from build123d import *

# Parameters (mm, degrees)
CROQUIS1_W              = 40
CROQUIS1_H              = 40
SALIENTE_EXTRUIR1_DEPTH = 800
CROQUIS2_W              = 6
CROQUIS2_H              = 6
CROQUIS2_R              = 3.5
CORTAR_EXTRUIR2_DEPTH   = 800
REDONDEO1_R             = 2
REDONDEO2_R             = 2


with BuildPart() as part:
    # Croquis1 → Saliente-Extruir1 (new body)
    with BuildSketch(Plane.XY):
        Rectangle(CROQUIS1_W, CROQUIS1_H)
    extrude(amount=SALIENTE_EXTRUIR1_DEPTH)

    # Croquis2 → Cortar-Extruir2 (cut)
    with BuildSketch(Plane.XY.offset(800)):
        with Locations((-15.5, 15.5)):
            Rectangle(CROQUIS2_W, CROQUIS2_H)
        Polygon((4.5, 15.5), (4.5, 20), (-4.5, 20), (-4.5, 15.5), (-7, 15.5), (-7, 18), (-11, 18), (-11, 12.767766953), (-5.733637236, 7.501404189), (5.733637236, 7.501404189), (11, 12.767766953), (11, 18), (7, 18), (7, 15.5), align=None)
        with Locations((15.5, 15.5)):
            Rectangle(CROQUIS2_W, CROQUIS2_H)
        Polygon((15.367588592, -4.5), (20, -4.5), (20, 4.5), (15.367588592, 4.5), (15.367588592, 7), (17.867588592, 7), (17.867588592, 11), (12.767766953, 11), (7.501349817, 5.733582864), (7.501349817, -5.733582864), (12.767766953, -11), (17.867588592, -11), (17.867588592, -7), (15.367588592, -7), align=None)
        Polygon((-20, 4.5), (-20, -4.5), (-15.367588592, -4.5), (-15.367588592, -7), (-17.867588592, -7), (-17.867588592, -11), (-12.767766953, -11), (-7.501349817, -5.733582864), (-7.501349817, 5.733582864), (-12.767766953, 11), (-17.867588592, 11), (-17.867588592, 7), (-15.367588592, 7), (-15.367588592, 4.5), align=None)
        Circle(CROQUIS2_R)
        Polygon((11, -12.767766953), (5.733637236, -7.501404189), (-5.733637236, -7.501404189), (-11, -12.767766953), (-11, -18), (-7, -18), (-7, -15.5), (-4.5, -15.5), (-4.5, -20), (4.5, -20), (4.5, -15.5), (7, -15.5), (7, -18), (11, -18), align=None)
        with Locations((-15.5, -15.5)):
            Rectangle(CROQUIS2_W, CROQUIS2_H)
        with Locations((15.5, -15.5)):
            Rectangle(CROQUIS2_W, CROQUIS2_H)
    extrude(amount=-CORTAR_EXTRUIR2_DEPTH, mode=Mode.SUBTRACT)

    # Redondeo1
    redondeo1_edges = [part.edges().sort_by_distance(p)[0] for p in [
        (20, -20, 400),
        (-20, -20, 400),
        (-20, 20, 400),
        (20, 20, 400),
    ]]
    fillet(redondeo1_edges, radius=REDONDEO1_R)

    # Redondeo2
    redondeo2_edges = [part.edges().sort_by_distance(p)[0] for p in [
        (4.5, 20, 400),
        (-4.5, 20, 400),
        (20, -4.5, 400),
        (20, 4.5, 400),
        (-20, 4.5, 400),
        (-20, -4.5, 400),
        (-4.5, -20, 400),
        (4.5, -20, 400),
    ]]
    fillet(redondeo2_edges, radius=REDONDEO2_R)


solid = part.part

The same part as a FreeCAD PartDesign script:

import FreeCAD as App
import Part
import Sketcher


def edges_at(feature, points):
    """Names of the edges that pass closest to the given points."""
    edges = feature.Shape.Edges
    near = lambda p: min(range(len(edges)), key=lambda i: edges[i].distToShape(Part.Vertex(*p))[0])
    return sorted({f"Edge{near(p) + 1}" for p in points})

doc = App.newDocument("Part")
body = doc.addObject("PartDesign::Body", "Body")

sketch1 = doc.addObject("Sketcher::SketchObject", "Sketch")
body.addObject(sketch1)
sketch1.AttachmentSupport = (doc.XY_Plane, [""])
sketch1.MapMode = "FlatFace"
sketch1.addGeometry([
    Part.LineSegment(App.Vector(-20, 20, 0), App.Vector(-20, -20, 0)),
    Part.LineSegment(App.Vector(-20, -20, 0), App.Vector(20, -20, 0)),
    Part.LineSegment(App.Vector(20, -20, 0), App.Vector(20, 20, 0)),
    Part.LineSegment(App.Vector(20, 20, 0), App.Vector(-20, 20, 0)),
], False)
sketch1.addConstraint([
    Sketcher.Constraint("Coincident", 0, 2, 1, 1),
    Sketcher.Constraint("Coincident", 1, 2, 2, 1),
    Sketcher.Constraint("Coincident", 2, 2, 3, 1),
    Sketcher.Constraint("Coincident", 3, 2, 0, 1),
    Sketcher.Constraint("Vertical", 0),
    Sketcher.Constraint("Horizontal", 1),
    Sketcher.Constraint("Vertical", 2),
    Sketcher.Constraint("Horizontal", 3),
    Sketcher.Constraint("Symmetric", 0, 2, 2, 2, -1, 1),
    Sketcher.Constraint("Equal", 3, 0),
    Sketcher.Constraint("DistanceX", 1, 1, 1, 2, 40.0),
])
pad1 = doc.addObject("PartDesign::Pad", "Pad")
body.addObject(pad1)
pad1.Profile = sketch1
pad1.Length = 800

sketch2 = doc.addObject("Sketcher::SketchObject", "Sketch001")
body.addObject(sketch2)
sketch2.AttachmentSupport = (doc.XY_Plane, [""])
sketch2.MapMode = "FlatFace"
sketch2.AttachmentOffset = App.Placement(App.Vector(0, 0, 800), App.Rotation())
sketch2.addGeometry([
    Part.LineSegment(App.Vector(-18.5, 18.5, 0), App.Vector(-18.5, 12.5, 0)),
    Part.LineSegment(App.Vector(-18.5, 12.5, 0), App.Vector(-12.5, 12.5, 0)),
    Part.LineSegment(App.Vector(-12.5, 12.5, 0), App.Vector(-12.5, 18.5, 0)),
    Part.LineSegment(App.Vector(-12.5, 18.5, 0), App.Vector(-18.5, 18.5, 0)),
    Part.LineSegment(App.Vector(4.5, 15.5, 0), App.Vector(4.5, 20, 0)),
    Part.LineSegment(App.Vector(4.5, 20, 0), App.Vector(-4.5, 20, 0)),
    Part.LineSegment(App.Vector(-4.5, 20, 0), App.Vector(-4.5, 15.5, 0)),
    Part.LineSegment(App.Vector(-4.5, 15.5, 0), App.Vector(-7, 15.5, 0)),
    Part.LineSegment(App.Vector(-7, 15.5, 0), App.Vector(-7, 18, 0)),
    Part.LineSegment(App.Vector(-7, 18, 0), App.Vector(-11, 18, 0)),
    Part.LineSegment(App.Vector(-11, 18, 0), App.Vector(-11, 12.8, 0)),
    Part.LineSegment(App.Vector(-11, 12.8, 0), App.Vector(-5.7, 7.5, 0)),
    Part.LineSegment(App.Vector(-5.7, 7.5, 0), App.Vector(5.7, 7.5, 0)),
    Part.LineSegment(App.Vector(5.7, 7.5, 0), App.Vector(11, 12.8, 0)),
    Part.LineSegment(App.Vector(11, 12.8, 0), App.Vector(11, 18, 0)),
    Part.LineSegment(App.Vector(11, 18, 0), App.Vector(7, 18, 0)),
    Part.LineSegment(App.Vector(7, 18, 0), App.Vector(7, 15.5, 0)),
    Part.LineSegment(App.Vector(7, 15.5, 0), App.Vector(4.5, 15.5, 0)),
    Part.LineSegment(App.Vector(12.5, 18.5, 0), App.Vector(12.5, 12.5, 0)),
    Part.LineSegment(App.Vector(12.5, 12.5, 0), App.Vector(18.5, 12.5, 0)),
    Part.LineSegment(App.Vector(18.5, 12.5, 0), App.Vector(18.5, 18.5, 0)),
    Part.LineSegment(App.Vector(18.5, 18.5, 0), App.Vector(12.5, 18.5, 0)),
    Part.LineSegment(App.Vector(15.4, -4.5, 0), App.Vector(20, -4.5, 0)),
    Part.LineSegment(App.Vector(20, -4.5, 0), App.Vector(20, 4.5, 0)),
    Part.LineSegment(App.Vector(20, 4.5, 0), App.Vector(15.4, 4.5, 0)),
    Part.LineSegment(App.Vector(15.4, 4.5, 0), App.Vector(15.4, 7, 0)),
    Part.LineSegment(App.Vector(15.4, 7, 0), App.Vector(17.9, 7, 0)),
    Part.LineSegment(App.Vector(17.9, 7, 0), App.Vector(17.9, 11, 0)),
    Part.LineSegment(App.Vector(17.9, 11, 0), App.Vector(12.8, 11, 0)),
    Part.LineSegment(App.Vector(12.8, 11, 0), App.Vector(7.5, 5.7, 0)),
    Part.LineSegment(App.Vector(7.5, 5.7, 0), App.Vector(7.5, -5.7, 0)),
    Part.LineSegment(App.Vector(7.5, -5.7, 0), App.Vector(12.8, -11, 0)),
    Part.LineSegment(App.Vector(12.8, -11, 0), App.Vector(17.9, -11, 0)),
    Part.LineSegment(App.Vector(17.9, -11, 0), App.Vector(17.9, -7, 0)),
    Part.LineSegment(App.Vector(17.9, -7, 0), App.Vector(15.4, -7, 0)),
    Part.LineSegment(App.Vector(15.4, -7, 0), App.Vector(15.4, -4.5, 0)),
    Part.LineSegment(App.Vector(-20, 4.5, 0), App.Vector(-20, -4.5, 0)),
    Part.LineSegment(App.Vector(-20, -4.5, 0), App.Vector(-15.4, -4.5, 0)),
    Part.LineSegment(App.Vector(-15.4, -4.5, 0), App.Vector(-15.4, -7, 0)),
    Part.LineSegment(App.Vector(-15.4, -7, 0), App.Vector(-17.9, -7, 0)),
    Part.LineSegment(App.Vector(-17.9, -7, 0), App.Vector(-17.9, -11, 0)),
    Part.LineSegment(App.Vector(-17.9, -11, 0), App.Vector(-12.8, -11, 0)),
    Part.LineSegment(App.Vector(-12.8, -11, 0), App.Vector(-7.5, -5.7, 0)),
    Part.LineSegment(App.Vector(-7.5, -5.7, 0), App.Vector(-7.5, 5.7, 0)),
    Part.LineSegment(App.Vector(-7.5, 5.7, 0), App.Vector(-12.8, 11, 0)),
    Part.LineSegment(App.Vector(-12.8, 11, 0), App.Vector(-17.9, 11, 0)),
    Part.LineSegment(App.Vector(-17.9, 11, 0), App.Vector(-17.9, 7, 0)),
    Part.LineSegment(App.Vector(-17.9, 7, 0), App.Vector(-15.4, 7, 0)),
    Part.LineSegment(App.Vector(-15.4, 7, 0), App.Vector(-15.4, 4.5, 0)),
    Part.LineSegment(App.Vector(-15.4, 4.5, 0), App.Vector(-20, 4.5, 0)),
    Part.Circle(App.Vector(0, 0, 0), App.Vector(0, 0, 1), 3.5),
    Part.LineSegment(App.Vector(11, -12.8, 0), App.Vector(5.7, -7.5, 0)),
    Part.LineSegment(App.Vector(5.7, -7.5, 0), App.Vector(-5.7, -7.5, 0)),
    Part.LineSegment(App.Vector(-5.7, -7.5, 0), App.Vector(-11, -12.8, 0)),
    Part.LineSegment(App.Vector(-11, -12.8, 0), App.Vector(-11, -18, 0)),
    Part.LineSegment(App.Vector(-11, -18, 0), App.Vector(-7, -18, 0)),
    Part.LineSegment(App.Vector(-7, -18, 0), App.Vector(-7, -15.5, 0)),
    Part.LineSegment(App.Vector(-7, -15.5, 0), App.Vector(-4.5, -15.5, 0)),
    Part.LineSegment(App.Vector(-4.5, -15.5, 0), App.Vector(-4.5, -20, 0)),
    Part.LineSegment(App.Vector(-4.5, -20, 0), App.Vector(4.5, -20, 0)),
    Part.LineSegment(App.Vector(4.5, -20, 0), App.Vector(4.5, -15.5, 0)),
    Part.LineSegment(App.Vector(4.5, -15.5, 0), App.Vector(7, -15.5, 0)),
    Part.LineSegment(App.Vector(7, -15.5, 0), App.Vector(7, -18, 0)),
    Part.LineSegment(App.Vector(7, -18, 0), App.Vector(11, -18, 0)),
    Part.LineSegment(App.Vector(11, -18, 0), App.Vector(11, -12.8, 0)),
    Part.LineSegment(App.Vector(-18.5, -12.5, 0), App.Vector(-18.5, -18.5, 0)),
    Part.LineSegment(App.Vector(-18.5, -18.5, 0), App.Vector(-12.5, -18.5, 0)),
    Part.LineSegment(App.Vector(-12.5, -18.5, 0), App.Vector(-12.5, -12.5, 0)),
    Part.LineSegment(App.Vector(-12.5, -12.5, 0), App.Vector(-18.5, -12.5, 0)),
    Part.LineSegment(App.Vector(12.5, -12.5, 0), App.Vector(12.5, -18.5, 0)),
    Part.LineSegment(App.Vector(12.5, -18.5, 0), App.Vector(18.5, -18.5, 0)),
    Part.LineSegment(App.Vector(18.5, -18.5, 0), App.Vector(18.5, -12.5, 0)),
    Part.LineSegment(App.Vector(18.5, -12.5, 0), App.Vector(12.5, -12.5, 0)),
], False)
sketch2.addConstraint([
    Sketcher.Constraint("Coincident", 0, 2, 1, 1),
    Sketcher.Constraint("Coincident", 1, 2, 2, 1),
    Sketcher.Constraint("Coincident", 2, 2, 3, 1),
    Sketcher.Constraint("Coincident", 3, 2, 0, 1),
    Sketcher.Constraint("Coincident", 4, 2, 5, 1),
    Sketcher.Constraint("Coincident", 5, 2, 6, 1),
    Sketcher.Constraint("Coincident", 6, 2, 7, 1),
    Sketcher.Constraint("Coincident", 7, 2, 8, 1),
    Sketcher.Constraint("Coincident", 8, 2, 9, 1),
    Sketcher.Constraint("Coincident", 9, 2, 10, 1),
    Sketcher.Constraint("Coincident", 10, 2, 11, 1),
    Sketcher.Constraint("Coincident", 11, 2, 12, 1),
    Sketcher.Constraint("Coincident", 12, 2, 13, 1),
    Sketcher.Constraint("Coincident", 13, 2, 14, 1),
    Sketcher.Constraint("Coincident", 14, 2, 15, 1),
    Sketcher.Constraint("Coincident", 15, 2, 16, 1),
    Sketcher.Constraint("Coincident", 16, 2, 17, 1),
    Sketcher.Constraint("Coincident", 17, 2, 4, 1),
    Sketcher.Constraint("Coincident", 18, 2, 19, 1),
    Sketcher.Constraint("Coincident", 19, 2, 20, 1),
    Sketcher.Constraint("Coincident", 20, 2, 21, 1),
    Sketcher.Constraint("Coincident", 21, 2, 18, 1),
    Sketcher.Constraint("Coincident", 22, 2, 23, 1),
    Sketcher.Constraint("Coincident", 23, 2, 24, 1),
    Sketcher.Constraint("Coincident", 24, 2, 25, 1),
    Sketcher.Constraint("Coincident", 25, 2, 26, 1),
    Sketcher.Constraint("Coincident", 26, 2, 27, 1),
    Sketcher.Constraint("Coincident", 27, 2, 28, 1),
    Sketcher.Constraint("Coincident", 28, 2, 29, 1),
    Sketcher.Constraint("Coincident", 29, 2, 30, 1),
    Sketcher.Constraint("Coincident", 30, 2, 31, 1),
    Sketcher.Constraint("Coincident", 31, 2, 32, 1),
    Sketcher.Constraint("Coincident", 32, 2, 33, 1),
    Sketcher.Constraint("Coincident", 33, 2, 34, 1),
    Sketcher.Constraint("Coincident", 34, 2, 35, 1),
    Sketcher.Constraint("Coincident", 35, 2, 22, 1),
    Sketcher.Constraint("Coincident", 36, 2, 37, 1),
    Sketcher.Constraint("Coincident", 37, 2, 38, 1),
    Sketcher.Constraint("Coincident", 38, 2, 39, 1),
    Sketcher.Constraint("Coincident", 39, 2, 40, 1),
    Sketcher.Constraint("Coincident", 40, 2, 41, 1),
    Sketcher.Constraint("Coincident", 41, 2, 42, 1),
    Sketcher.Constraint("Coincident", 42, 2, 43, 1),
    Sketcher.Constraint("Coincident", 43, 2, 44, 1),
    Sketcher.Constraint("Coincident", 44, 2, 45, 1),
    Sketcher.Constraint("Coincident", 45, 2, 46, 1),
    Sketcher.Constraint("Coincident", 46, 2, 47, 1),
    Sketcher.Constraint("Coincident", 47, 2, 48, 1),
    Sketcher.Constraint("Coincident", 48, 2, 49, 1),
    Sketcher.Constraint("Coincident", 49, 2, 36, 1),
    Sketcher.Constraint("Coincident", 51, 2, 52, 1),
    Sketcher.Constraint("Coincident", 52, 2, 53, 1),
    Sketcher.Constraint("Coincident", 53, 2, 54, 1),
    Sketcher.Constraint("Coincident", 54, 2, 55, 1),
    Sketcher.Constraint("Coincident", 55, 2, 56, 1),
    Sketcher.Constraint("Coincident", 56, 2, 57, 1),
    Sketcher.Constraint("Coincident", 57, 2, 58, 1),
    Sketcher.Constraint("Coincident", 58, 2, 59, 1),
    Sketcher.Constraint("Coincident", 59, 2, 60, 1),
    Sketcher.Constraint("Coincident", 60, 2, 61, 1),
    Sketcher.Constraint("Coincident", 61, 2, 62, 1),
    Sketcher.Constraint("Coincident", 62, 2, 63, 1),
    Sketcher.Constraint("Coincident", 63, 2, 64, 1),
    Sketcher.Constraint("Coincident", 64, 2, 51, 1),
    Sketcher.Constraint("Coincident", 65, 2, 66, 1),
    Sketcher.Constraint("Coincident", 66, 2, 67, 1),
    Sketcher.Constraint("Coincident", 67, 2, 68, 1),
    Sketcher.Constraint("Coincident", 68, 2, 65, 1),
    Sketcher.Constraint("Coincident", 69, 2, 70, 1),
    Sketcher.Constraint("Coincident", 70, 2, 71, 1),
    Sketcher.Constraint("Coincident", 71, 2, 72, 1),
    Sketcher.Constraint("Coincident", 72, 2, 69, 1),
    Sketcher.Constraint("Vertical", 0),
    Sketcher.Constraint("Horizontal", 1),
    Sketcher.Constraint("Vertical", 2),
    Sketcher.Constraint("Horizontal", 3),
    Sketcher.Constraint("Vertical", 4),
    Sketcher.Constraint("Horizontal", 5),
    Sketcher.Constraint("Vertical", 6),
    Sketcher.Constraint("Horizontal", 7),
    Sketcher.Constraint("Vertical", 8),
    Sketcher.Constraint("Horizontal", 9),
    Sketcher.Constraint("Vertical", 10),
    Sketcher.Constraint("Horizontal", 12),
    Sketcher.Constraint("Vertical", 14),
    Sketcher.Constraint("Horizontal", 15),
    Sketcher.Constraint("Vertical", 16),
    Sketcher.Constraint("Horizontal", 17),
    Sketcher.Constraint("Vertical", 18),
    Sketcher.Constraint("Horizontal", 19),
    Sketcher.Constraint("Vertical", 20),
    Sketcher.Constraint("Horizontal", 21),
    Sketcher.Constraint("Horizontal", 22),
    Sketcher.Constraint("Vertical", 23),
    Sketcher.Constraint("Horizontal", 24),
    Sketcher.Constraint("Vertical", 25),
    Sketcher.Constraint("Horizontal", 26),
    Sketcher.Constraint("Vertical", 27),
    Sketcher.Constraint("Horizontal", 28),
    Sketcher.Constraint("Vertical", 30),
    Sketcher.Constraint("Horizontal", 32),
    Sketcher.Constraint("Vertical", 33),
    Sketcher.Constraint("Horizontal", 34),
    Sketcher.Constraint("Vertical", 35),
    Sketcher.Constraint("Vertical", 36),
    Sketcher.Constraint("Horizontal", 37),
    Sketcher.Constraint("Vertical", 38),
    Sketcher.Constraint("Horizontal", 39),
    Sketcher.Constraint("Vertical", 40),
    Sketcher.Constraint("Horizontal", 41),
    Sketcher.Constraint("Vertical", 43),
    Sketcher.Constraint("Horizontal", 45),
    Sketcher.Constraint("Vertical", 46),
    Sketcher.Constraint("Horizontal", 47),
    Sketcher.Constraint("Vertical", 48),
    Sketcher.Constraint("Horizontal", 49),
    Sketcher.Constraint("Horizontal", 52),
    Sketcher.Constraint("Vertical", 54),
    Sketcher.Constraint("Horizontal", 55),
    Sketcher.Constraint("Vertical", 56),
    Sketcher.Constraint("Horizontal", 57),
    Sketcher.Constraint("Vertical", 58),
    Sketcher.Constraint("Horizontal", 59),
    Sketcher.Constraint("Vertical", 60),
    Sketcher.Constraint("Horizontal", 61),
    Sketcher.Constraint("Vertical", 62),
    Sketcher.Constraint("Horizontal", 63),
    Sketcher.Constraint("Vertical", 64),
    Sketcher.Constraint("Vertical", 65),
    Sketcher.Constraint("Horizontal", 66),
    Sketcher.Constraint("Vertical", 67),
    Sketcher.Constraint("Horizontal", 68),
    Sketcher.Constraint("Vertical", 69),
    Sketcher.Constraint("Horizontal", 70),
    Sketcher.Constraint("Vertical", 71),
    Sketcher.Constraint("Horizontal", 72),
    Sketcher.Constraint("Coincident", 50, 3, -1, 1),
    Sketcher.Constraint("Symmetric", 23, 2, 36, 2, -1, 1),
    Sketcher.Constraint("Symmetric", 25, 2, 38, 2, -1, 1),
    Sketcher.Constraint("Symmetric", 27, 2, 40, 2, -1, 1),
    Sketcher.Constraint("Symmetric", 29, 2, 42, 2, -1, 1),
    Sketcher.Constraint("Symmetric", 31, 2, 44, 2, -1, 1),
    Sketcher.Constraint("Symmetric", 33, 2, 46, 2, -1, 1),
    Sketcher.Constraint("Symmetric", 35, 2, 48, 2, -1, 1),
    Sketcher.Constraint("Symmetric", 11, 2, 51, 2, -1, 1),
    Sketcher.Constraint("Symmetric", 13, 2, 53, 2, -1, 1),
    Sketcher.Constraint("Symmetric", 15, 2, 55, 2, -1, 1),
    Sketcher.Constraint("Symmetric", 17, 2, 57, 2, -1, 1),
    Sketcher.Constraint("Symmetric", 5, 2, 59, 2, -1, 1),
    Sketcher.Constraint("Symmetric", 7, 2, 61, 2, -1, 1),
    Sketcher.Constraint("Symmetric", 9, 2, 63, 2, -1, 1),
    Sketcher.Constraint("Symmetric", 20, 2, 65, 2, -1, 1),
    Sketcher.Constraint("Symmetric", 18, 2, 67, 2, -1, 1),
    Sketcher.Constraint("Symmetric", 2, 2, 69, 2, -1, 1),
    Sketcher.Constraint("Symmetric", 0, 2, 71, 2, -1, 1),
    Sketcher.Constraint("Symmetric", 10, 2, 13, 2, -2),
    Sketcher.Constraint("Symmetric", 8, 2, 15, 2, -2),
    Sketcher.Constraint("Symmetric", 6, 2, 17, 2, -2),
    Sketcher.Constraint("Symmetric", 1, 2, 18, 2, -2),
    Sketcher.Constraint("Symmetric", 3, 2, 20, 2, -2),
    Sketcher.Constraint("Symmetric", 35, 2, 37, 2, -2),
    Sketcher.Constraint("Symmetric", 33, 2, 39, 2, -2),
    Sketcher.Constraint("Symmetric", 31, 2, 41, 2, -2),
    Sketcher.Constraint("Perpendicular", 11, 13),
    Sketcher.Constraint("Parallel", 13, 29),
    Sketcher.Constraint("Perpendicular", 29, 31),
    Sketcher.Constraint("Perpendicular", 31, 42),
    Sketcher.Constraint("Perpendicular", 42, 44),
    Sketcher.Constraint("Parallel", 44, 51),
    Sketcher.Constraint("Perpendicular", 51, 53),
    Sketcher.Constraint("Horizontal", 30, 2, 42, 2),
    Sketcher.Constraint("Equal", 17, 26),
    Sketcher.Constraint("Equal", 72, 0),
    Sketcher.Constraint("Equal", 61, 8),
    Sketcher.Constraint("Equal", 59, 23),
    Sketcher.Constraint("Equal", 16, 25),
    Sketcher.Constraint("Equal", 63, 27),
    Sketcher.Constraint("Diameter", 50, 7.0),
    Sketcher.Constraint("DistanceX", 1, 1, 1, 2, 6.0),
    Sketcher.Constraint("DistanceX", 5, 2, 5, 1, 9.0),
    Sketcher.Constraint("DistanceX", 9, 2, 9, 1, 4.0),
    Sketcher.Constraint("DistanceX", 7, 2, 7, 1, 2.5),
    Sketcher.Constraint("DistanceY", 4, 1, 4, 2, 4.5),
    Sketcher.Constraint("DistanceY", -1, 1, 4, 2, 20.0),
    Sketcher.Constraint("DistanceX", -1, 1, 22, 2, 20.0),
    Sketcher.Constraint("DistanceX", 0, 2, -1, 1, 18.5),
    Sketcher.Constraint("DistanceY", -1, 1, 0, 2, 12.5),
    Sketcher.Constraint("DistanceX", 22, 1, 22, 2, 4.632411),
    Sketcher.Constraint("DistanceX", 28, 2, 28, 1, 5.099822),
    Sketcher.Constraint("Distance", 11, 7.447762),
    Sketcher.Constraint("Distance", 29, 7.447839),
    Sketcher.Constraint("DistanceY", 10, 2, 10, 1, 5.232233),
])
pocket1 = doc.addObject("PartDesign::Pocket", "Pocket")
body.addObject(pocket1)
pocket1.Profile = sketch2
pocket1.Length = 800
doc.recompute()

fillet = doc.addObject("PartDesign::Fillet", "Fillet")
body.addObject(fillet)
fillet.Base = (pocket1, edges_at(pocket1, [
    (20, -20, 400),
    (-20, -20, 400),
    (-20, 20, 400),
    (20, 20, 400),
]))
fillet.Radius = 2
doc.recompute()

fillet2 = doc.addObject("PartDesign::Fillet", "Fillet001")
body.addObject(fillet2)
fillet2.Base = (fillet, edges_at(fillet, [
    (4.5, 20, 400),
    (-4.5, 20, 400),
    (20, -4.5, 400),
    (20, 4.5, 400),
    (-20, 4.5, 400),
    (-20, -4.5, 400),
    (-4.5, -20, 400),
    (4.5, -20, 400),
]))
fillet2.Radius = 2

doc.recompute()
